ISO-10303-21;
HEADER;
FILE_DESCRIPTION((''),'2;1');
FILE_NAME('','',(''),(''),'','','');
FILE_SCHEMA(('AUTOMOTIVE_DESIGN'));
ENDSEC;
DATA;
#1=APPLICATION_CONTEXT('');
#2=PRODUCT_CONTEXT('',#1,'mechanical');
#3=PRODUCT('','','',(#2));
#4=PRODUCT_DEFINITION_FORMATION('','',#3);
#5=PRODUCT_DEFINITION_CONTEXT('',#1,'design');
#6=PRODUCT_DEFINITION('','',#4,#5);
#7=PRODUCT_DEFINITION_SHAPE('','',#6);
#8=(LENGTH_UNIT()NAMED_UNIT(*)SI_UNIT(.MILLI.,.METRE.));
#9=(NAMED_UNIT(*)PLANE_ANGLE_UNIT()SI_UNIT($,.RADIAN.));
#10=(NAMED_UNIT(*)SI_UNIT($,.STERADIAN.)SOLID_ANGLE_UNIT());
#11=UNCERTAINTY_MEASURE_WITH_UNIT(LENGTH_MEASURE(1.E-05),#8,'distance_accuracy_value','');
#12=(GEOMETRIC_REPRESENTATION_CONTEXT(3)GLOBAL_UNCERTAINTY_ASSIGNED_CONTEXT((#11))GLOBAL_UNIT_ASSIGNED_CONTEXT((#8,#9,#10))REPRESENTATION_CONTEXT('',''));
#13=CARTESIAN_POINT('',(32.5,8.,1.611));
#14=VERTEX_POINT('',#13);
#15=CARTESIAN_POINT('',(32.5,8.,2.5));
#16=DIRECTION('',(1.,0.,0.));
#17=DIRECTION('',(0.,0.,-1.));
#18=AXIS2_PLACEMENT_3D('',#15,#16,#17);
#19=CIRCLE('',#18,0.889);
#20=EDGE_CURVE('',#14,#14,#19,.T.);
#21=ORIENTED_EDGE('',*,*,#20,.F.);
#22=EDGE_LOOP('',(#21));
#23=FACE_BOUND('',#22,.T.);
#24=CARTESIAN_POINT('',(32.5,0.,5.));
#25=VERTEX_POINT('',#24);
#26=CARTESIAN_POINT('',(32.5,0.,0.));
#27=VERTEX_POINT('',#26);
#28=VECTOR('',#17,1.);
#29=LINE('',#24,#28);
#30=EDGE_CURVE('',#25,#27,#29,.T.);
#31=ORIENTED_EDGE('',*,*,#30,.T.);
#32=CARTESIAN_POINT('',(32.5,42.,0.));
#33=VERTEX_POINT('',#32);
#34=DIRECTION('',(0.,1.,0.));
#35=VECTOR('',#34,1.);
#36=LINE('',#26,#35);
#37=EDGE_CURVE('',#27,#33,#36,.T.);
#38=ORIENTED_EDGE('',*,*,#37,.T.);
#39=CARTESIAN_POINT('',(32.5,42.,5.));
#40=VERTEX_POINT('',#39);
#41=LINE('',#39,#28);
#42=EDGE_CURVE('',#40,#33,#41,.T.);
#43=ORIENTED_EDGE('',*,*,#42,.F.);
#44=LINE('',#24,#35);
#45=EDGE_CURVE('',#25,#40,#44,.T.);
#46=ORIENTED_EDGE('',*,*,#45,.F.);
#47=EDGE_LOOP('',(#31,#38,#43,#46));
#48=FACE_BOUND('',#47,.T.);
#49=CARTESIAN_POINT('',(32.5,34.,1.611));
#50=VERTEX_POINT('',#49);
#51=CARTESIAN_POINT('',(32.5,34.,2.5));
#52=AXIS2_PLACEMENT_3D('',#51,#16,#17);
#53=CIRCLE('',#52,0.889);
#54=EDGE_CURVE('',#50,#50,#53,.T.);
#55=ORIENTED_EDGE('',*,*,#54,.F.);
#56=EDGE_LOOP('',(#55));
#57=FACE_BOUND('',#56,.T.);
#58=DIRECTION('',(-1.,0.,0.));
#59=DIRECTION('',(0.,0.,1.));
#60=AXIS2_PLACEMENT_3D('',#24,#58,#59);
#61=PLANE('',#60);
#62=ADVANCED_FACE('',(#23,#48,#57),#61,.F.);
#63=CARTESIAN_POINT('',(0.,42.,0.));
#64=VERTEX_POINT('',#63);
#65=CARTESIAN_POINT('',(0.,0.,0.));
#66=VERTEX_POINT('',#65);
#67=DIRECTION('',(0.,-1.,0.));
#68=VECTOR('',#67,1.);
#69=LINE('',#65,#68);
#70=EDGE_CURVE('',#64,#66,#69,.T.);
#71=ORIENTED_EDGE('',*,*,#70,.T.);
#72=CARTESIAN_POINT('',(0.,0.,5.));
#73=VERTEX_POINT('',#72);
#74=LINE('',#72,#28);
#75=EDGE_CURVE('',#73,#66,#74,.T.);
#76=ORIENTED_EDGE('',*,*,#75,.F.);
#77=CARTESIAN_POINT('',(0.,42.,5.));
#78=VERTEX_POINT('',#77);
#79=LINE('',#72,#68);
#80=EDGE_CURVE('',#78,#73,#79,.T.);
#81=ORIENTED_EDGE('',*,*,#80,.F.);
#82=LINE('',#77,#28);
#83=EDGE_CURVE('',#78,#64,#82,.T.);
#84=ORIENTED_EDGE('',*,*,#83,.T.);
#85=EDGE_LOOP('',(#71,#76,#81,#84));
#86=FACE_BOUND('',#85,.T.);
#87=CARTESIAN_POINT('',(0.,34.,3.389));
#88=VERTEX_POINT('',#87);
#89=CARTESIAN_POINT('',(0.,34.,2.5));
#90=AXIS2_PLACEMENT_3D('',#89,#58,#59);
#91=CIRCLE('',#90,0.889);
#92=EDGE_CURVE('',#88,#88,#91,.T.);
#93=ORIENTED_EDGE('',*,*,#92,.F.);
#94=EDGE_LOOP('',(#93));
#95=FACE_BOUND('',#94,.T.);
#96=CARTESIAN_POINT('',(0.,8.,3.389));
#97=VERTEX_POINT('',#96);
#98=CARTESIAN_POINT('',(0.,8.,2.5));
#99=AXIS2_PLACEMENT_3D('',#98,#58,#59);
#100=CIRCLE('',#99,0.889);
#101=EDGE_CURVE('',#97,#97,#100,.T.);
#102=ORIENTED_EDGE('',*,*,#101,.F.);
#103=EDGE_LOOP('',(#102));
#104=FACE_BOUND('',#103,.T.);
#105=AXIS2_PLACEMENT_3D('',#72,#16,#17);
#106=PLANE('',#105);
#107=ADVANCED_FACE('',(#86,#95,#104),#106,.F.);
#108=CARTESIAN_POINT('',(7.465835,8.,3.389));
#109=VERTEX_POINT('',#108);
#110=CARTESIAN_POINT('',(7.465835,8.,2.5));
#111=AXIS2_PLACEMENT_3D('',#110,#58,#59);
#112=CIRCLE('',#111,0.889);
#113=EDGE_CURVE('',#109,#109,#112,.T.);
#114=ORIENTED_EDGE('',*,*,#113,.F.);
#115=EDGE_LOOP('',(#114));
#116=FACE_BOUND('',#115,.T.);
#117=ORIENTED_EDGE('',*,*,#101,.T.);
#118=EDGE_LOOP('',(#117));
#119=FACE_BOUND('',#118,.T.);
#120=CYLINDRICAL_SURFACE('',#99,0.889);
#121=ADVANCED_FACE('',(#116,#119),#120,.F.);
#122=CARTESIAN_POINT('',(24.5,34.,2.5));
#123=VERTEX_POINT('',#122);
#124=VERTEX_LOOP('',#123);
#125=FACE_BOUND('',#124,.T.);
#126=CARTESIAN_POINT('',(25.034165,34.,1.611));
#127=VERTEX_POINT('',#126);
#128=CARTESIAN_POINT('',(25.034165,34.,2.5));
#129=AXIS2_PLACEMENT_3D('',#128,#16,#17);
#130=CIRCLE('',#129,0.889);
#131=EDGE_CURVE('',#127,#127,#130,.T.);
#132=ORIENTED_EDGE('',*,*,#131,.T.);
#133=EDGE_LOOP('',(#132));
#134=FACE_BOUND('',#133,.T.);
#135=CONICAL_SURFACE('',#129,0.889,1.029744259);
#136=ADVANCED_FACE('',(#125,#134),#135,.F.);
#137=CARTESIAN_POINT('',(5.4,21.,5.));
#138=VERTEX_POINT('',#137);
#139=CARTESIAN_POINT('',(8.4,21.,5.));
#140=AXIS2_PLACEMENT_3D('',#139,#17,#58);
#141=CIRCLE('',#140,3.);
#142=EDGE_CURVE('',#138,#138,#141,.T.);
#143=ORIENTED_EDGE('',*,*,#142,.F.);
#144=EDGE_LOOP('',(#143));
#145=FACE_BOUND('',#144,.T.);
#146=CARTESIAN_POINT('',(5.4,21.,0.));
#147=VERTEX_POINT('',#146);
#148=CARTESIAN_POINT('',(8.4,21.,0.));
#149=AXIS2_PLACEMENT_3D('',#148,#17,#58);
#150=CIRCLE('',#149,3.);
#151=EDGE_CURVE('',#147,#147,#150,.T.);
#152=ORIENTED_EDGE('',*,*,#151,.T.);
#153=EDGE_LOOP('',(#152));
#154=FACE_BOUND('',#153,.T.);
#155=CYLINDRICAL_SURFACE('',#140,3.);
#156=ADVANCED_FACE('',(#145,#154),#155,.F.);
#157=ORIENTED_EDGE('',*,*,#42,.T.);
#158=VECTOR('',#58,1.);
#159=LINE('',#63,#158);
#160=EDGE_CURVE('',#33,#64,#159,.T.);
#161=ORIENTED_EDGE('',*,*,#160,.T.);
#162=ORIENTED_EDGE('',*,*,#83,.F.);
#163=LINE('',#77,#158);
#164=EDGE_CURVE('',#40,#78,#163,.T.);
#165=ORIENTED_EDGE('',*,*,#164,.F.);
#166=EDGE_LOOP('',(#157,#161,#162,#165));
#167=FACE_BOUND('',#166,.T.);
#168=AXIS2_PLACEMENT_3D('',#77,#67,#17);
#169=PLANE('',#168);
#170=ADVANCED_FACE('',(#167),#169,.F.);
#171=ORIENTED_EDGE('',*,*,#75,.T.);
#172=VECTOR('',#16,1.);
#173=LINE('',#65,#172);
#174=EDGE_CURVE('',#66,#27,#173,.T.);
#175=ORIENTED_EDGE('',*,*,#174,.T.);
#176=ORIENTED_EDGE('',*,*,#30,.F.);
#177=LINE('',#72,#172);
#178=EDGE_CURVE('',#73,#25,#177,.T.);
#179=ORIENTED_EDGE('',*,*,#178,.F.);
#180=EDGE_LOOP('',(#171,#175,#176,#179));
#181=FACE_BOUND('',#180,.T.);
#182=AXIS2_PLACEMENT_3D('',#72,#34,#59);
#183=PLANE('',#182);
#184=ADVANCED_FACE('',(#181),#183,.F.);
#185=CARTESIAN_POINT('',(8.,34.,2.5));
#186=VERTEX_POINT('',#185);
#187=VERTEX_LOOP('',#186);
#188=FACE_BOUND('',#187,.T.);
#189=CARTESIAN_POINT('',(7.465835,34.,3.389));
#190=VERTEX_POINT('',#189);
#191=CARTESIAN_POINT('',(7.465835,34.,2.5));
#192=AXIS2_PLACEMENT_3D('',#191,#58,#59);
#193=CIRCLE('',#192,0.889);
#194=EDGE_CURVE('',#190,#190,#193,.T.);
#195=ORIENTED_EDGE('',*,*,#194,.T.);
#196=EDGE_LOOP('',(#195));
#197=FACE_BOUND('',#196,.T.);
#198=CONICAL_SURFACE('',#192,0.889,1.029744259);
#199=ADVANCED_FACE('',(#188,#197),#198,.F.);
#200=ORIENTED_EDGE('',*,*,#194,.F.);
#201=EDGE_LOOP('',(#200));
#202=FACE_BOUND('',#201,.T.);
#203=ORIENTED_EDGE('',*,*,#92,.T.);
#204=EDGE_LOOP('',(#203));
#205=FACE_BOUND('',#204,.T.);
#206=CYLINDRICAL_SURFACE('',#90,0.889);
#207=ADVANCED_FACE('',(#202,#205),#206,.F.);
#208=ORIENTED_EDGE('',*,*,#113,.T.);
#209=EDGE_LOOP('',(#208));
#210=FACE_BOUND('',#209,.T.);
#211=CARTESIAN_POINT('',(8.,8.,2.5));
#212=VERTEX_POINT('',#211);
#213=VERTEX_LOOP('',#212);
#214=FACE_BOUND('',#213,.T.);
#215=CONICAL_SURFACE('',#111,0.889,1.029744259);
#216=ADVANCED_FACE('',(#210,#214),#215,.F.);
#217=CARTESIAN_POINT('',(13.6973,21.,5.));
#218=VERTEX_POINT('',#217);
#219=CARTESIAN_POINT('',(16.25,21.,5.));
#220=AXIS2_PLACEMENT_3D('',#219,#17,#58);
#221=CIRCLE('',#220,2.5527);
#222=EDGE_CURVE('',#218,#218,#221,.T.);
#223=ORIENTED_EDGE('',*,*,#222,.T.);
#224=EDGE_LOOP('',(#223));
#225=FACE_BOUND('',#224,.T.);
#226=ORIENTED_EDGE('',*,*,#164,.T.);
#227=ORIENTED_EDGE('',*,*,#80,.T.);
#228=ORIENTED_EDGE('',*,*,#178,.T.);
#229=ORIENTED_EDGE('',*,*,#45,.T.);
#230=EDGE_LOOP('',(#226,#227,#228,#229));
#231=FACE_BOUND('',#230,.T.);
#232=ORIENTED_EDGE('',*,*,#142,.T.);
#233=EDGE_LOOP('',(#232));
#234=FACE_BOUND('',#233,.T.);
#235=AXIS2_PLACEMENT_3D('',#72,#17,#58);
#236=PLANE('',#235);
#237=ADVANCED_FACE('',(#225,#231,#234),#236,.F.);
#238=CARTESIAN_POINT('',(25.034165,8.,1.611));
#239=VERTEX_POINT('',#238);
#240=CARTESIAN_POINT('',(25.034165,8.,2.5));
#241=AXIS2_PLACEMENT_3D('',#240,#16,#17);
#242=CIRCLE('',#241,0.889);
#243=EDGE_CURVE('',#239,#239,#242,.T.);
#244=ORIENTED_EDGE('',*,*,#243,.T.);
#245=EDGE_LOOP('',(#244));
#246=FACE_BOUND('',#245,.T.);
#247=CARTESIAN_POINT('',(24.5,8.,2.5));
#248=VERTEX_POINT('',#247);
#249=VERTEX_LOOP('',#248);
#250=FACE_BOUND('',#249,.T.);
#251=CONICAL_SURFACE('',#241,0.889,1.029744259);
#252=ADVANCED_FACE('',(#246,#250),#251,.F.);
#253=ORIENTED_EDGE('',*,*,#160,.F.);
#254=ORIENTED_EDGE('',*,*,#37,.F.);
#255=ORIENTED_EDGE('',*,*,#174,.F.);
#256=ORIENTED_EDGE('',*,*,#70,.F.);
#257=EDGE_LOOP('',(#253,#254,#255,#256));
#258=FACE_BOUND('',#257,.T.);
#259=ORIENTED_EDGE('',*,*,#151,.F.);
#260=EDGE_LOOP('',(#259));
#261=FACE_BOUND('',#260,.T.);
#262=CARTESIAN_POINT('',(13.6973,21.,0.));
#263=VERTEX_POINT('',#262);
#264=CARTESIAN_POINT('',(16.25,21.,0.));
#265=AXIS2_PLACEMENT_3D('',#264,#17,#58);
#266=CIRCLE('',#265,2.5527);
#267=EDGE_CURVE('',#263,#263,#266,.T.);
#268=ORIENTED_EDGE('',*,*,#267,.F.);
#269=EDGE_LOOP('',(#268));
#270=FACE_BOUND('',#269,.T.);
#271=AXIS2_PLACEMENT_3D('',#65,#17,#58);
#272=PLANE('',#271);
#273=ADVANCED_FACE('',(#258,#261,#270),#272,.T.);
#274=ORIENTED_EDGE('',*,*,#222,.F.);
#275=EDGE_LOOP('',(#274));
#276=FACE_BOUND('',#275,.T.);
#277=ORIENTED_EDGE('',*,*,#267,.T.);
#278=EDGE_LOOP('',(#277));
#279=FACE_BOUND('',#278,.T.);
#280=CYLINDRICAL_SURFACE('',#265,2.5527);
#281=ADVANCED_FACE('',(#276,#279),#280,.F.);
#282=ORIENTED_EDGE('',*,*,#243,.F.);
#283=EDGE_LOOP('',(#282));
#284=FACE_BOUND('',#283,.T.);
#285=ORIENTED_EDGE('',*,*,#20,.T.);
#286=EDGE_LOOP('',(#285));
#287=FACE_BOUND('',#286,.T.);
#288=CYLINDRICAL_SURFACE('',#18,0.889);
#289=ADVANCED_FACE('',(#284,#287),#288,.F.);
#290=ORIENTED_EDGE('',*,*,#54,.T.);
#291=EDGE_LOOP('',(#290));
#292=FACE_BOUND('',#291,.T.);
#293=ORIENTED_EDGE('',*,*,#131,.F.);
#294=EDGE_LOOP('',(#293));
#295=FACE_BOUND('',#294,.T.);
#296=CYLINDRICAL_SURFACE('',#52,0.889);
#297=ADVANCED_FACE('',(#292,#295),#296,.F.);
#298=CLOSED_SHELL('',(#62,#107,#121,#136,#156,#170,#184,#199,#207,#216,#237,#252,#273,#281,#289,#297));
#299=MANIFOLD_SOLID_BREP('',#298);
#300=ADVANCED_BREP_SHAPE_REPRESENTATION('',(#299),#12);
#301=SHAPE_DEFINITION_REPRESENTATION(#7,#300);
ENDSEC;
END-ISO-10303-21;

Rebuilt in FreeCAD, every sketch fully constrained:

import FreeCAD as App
import Part
import Sketcher
from FreeCAD import Vector


def add_polygon(sketch, points):
    """Adds a closed chain of lines whose ends are joined by coincident constraints."""
    first, n = sketch.GeometryCount, len(points)
    for a, b in zip(points, points[1:] + points[:1]):
        sketch.addGeometry(Part.LineSegment(App.Vector(*a, 0), App.Vector(*b, 0)), False)
    for i in range(n):
        sketch.addConstraint(Sketcher.Constraint("Coincident", first + i, 2, first + (i + 1) % n, 1))

doc = App.newDocument("Part")
body = doc.addObject("PartDesign::Body", "Body")

# Sketch on XY plane
sketch1 = body.newObject("Sketcher::SketchObject", "Sketch")
sketch1.AttachmentSupport = (doc.getObject("XY_Plane"), [""])
sketch1.MapMode = "FlatFace"
add_polygon(sketch1, [(0, 42), (0, 0), (32, 0), (32, 42)])  # lines 0-3
sketch1.addConstraint([
    Sketcher.Constraint("Vertical", 0),
    Sketcher.Constraint("Horizontal", 1),
    Sketcher.Constraint("Vertical", 2),
    Sketcher.Constraint("Horizontal", 3),
    Sketcher.Constraint("Coincident", 0, 2, -1, 1),
    Sketcher.Constraint("DistanceY", 0, 2, 0, 1, 42.0),
    Sketcher.Constraint("DistanceX", 1, 1, 1, 2, 32.5),
])
pad1 = body.newObject("PartDesign::Pad", "Pad")
pad1.Profile = sketch1
pad1.Length = 5

# Sketch on YZ plane
sketch2 = body.newObject("Sketcher::SketchObject", "Sketch001")
sketch2.AttachmentSupport = (doc.getObject("YZ_Plane"), [""])
sketch2.MapMode = "FlatFace"
sketch2.addGeometry([
    Part.Circle(Vector(34, 2.5, 0), Vector(0, 0, 1), 0.9),
    Part.Circle(Vector(8, 2.5, 0), Vector(0, 0, 1), 0.9),
], False)
sketch2.addConstraint([
    Sketcher.Constraint("Equal", 0, 1),
    Sketcher.Constraint("Horizontal", 0, 3, 1, 3),
    Sketcher.Constraint("Diameter", 0, 1.778),
    Sketcher.Constraint("DistanceX", -1, 1, 0, 3, 34.0),
    Sketcher.Constraint("DistanceX", -1, 1, 1, 3, 8.0),
    Sketcher.Constraint("DistanceY", -1, 1, 0, 3, 2.5),
])
doc.recompute()
hole = body.newObject("PartDesign::Hole", "Hole")
hole.Profile = sketch2
hole.ThreadType = "None"
hole.Diameter = 1.778
hole.DepthType = "Dimension"
hole.Depth = 7.465835
hole.DrillPoint = "Angled"
hole.DrillPointAngle = 118
hole.Reversed = True

# Sketch on YZ plane
sketch3 = body.newObject("Sketcher::SketchObject", "Sketch002")
sketch3.AttachmentSupport = (doc.getObject("YZ_Plane"), [""])
sketch3.MapMode = "FlatFace"
sketch3.AttachmentOffset = App.Placement(Vector(0, 0, 32.5), App.Rotation())
sketch3.addGeometry([
    Part.Circle(Vector(34, 2.5, 0), Vector(0, 0, 1), 0.9),
    Part.Circle(Vector(8, 2.5, 0), Vector(0, 0, 1), 0.9),
], False)
sketch3.addConstraint([
    Sketcher.Constraint("Equal", 0, 1),
    Sketcher.Constraint("Horizontal", 0, 3, 1, 3),
    Sketcher.Constraint("Diameter", 0, 1.778),
    Sketcher.Constraint("DistanceX", -1, 1, 0, 3, 34.0),
    Sketcher.Constraint("DistanceX", -1, 1, 1, 3, 8.0),
    Sketcher.Constraint("DistanceY", -1, 1, 0, 3, 2.5),
])
doc.recompute()
hole2 = body.newObject("PartDesign::Hole", "Hole001")
hole2.Profile = sketch3
hole2.ThreadType = "None"
hole2.Diameter = 1.778
hole2.DepthType = "Dimension"
hole2.Depth = 7.465835
hole2.DrillPoint = "Angled"
hole2.DrillPointAngle = 118

# Sketch on XY plane
sketch4 = body.newObject("Sketcher::SketchObject", "Sketch003")
sketch4.AttachmentSupport = (doc.getObject("XY_Plane"), [""])
sketch4.MapMode = "FlatFace"
sketch4.addGeometry(Part.Circle(Vector(8.4, 21, 0), Vector(0, 0, 1), 3), False)
sketch4.addConstraint([
    Sketcher.Constraint("Diameter", 0, 6.0),
    Sketcher.Constraint("DistanceY", -1, 1, 0, 3, 21.0),
    Sketcher.Constraint("DistanceX", -1, 1, 0, 3, 8.4),
])
pocket1 = body.newObject("PartDesign::Pocket", "Pocket")
pocket1.Profile = sketch4
pocket1.Length = 5
pocket1.Reversed = True

# Sketch on XY plane
sketch5 = body.newObject("Sketcher::SketchObject", "Sketch004")
sketch5.AttachmentSupport = (doc.getObject("XY_Plane"), [""])
sketch5.MapMode = "FlatFace"
sketch5.addGeometry(Part.Circle(Vector(16.2, 21, 0), Vector(0, 0, 1), 2.6), False)
sketch5.addConstraint([
    Sketcher.Constraint("DistanceY", -1, 1, 0, 3, 21.0),
    Sketcher.Constraint("Diameter", 0, 5.1054),
    Sketcher.Constraint("DistanceX", -1, 1, 0, 3, 16.25),
])
doc.recompute()
hole3 = body.newObject("PartDesign::Hole", "Hole002")
hole3.Profile = sketch5
hole3.ThreadType = "None"
hole3.Diameter = 5.1054
hole3.DepthType = "ThroughAll"
hole3.Reversed = True

doc.recompute()
